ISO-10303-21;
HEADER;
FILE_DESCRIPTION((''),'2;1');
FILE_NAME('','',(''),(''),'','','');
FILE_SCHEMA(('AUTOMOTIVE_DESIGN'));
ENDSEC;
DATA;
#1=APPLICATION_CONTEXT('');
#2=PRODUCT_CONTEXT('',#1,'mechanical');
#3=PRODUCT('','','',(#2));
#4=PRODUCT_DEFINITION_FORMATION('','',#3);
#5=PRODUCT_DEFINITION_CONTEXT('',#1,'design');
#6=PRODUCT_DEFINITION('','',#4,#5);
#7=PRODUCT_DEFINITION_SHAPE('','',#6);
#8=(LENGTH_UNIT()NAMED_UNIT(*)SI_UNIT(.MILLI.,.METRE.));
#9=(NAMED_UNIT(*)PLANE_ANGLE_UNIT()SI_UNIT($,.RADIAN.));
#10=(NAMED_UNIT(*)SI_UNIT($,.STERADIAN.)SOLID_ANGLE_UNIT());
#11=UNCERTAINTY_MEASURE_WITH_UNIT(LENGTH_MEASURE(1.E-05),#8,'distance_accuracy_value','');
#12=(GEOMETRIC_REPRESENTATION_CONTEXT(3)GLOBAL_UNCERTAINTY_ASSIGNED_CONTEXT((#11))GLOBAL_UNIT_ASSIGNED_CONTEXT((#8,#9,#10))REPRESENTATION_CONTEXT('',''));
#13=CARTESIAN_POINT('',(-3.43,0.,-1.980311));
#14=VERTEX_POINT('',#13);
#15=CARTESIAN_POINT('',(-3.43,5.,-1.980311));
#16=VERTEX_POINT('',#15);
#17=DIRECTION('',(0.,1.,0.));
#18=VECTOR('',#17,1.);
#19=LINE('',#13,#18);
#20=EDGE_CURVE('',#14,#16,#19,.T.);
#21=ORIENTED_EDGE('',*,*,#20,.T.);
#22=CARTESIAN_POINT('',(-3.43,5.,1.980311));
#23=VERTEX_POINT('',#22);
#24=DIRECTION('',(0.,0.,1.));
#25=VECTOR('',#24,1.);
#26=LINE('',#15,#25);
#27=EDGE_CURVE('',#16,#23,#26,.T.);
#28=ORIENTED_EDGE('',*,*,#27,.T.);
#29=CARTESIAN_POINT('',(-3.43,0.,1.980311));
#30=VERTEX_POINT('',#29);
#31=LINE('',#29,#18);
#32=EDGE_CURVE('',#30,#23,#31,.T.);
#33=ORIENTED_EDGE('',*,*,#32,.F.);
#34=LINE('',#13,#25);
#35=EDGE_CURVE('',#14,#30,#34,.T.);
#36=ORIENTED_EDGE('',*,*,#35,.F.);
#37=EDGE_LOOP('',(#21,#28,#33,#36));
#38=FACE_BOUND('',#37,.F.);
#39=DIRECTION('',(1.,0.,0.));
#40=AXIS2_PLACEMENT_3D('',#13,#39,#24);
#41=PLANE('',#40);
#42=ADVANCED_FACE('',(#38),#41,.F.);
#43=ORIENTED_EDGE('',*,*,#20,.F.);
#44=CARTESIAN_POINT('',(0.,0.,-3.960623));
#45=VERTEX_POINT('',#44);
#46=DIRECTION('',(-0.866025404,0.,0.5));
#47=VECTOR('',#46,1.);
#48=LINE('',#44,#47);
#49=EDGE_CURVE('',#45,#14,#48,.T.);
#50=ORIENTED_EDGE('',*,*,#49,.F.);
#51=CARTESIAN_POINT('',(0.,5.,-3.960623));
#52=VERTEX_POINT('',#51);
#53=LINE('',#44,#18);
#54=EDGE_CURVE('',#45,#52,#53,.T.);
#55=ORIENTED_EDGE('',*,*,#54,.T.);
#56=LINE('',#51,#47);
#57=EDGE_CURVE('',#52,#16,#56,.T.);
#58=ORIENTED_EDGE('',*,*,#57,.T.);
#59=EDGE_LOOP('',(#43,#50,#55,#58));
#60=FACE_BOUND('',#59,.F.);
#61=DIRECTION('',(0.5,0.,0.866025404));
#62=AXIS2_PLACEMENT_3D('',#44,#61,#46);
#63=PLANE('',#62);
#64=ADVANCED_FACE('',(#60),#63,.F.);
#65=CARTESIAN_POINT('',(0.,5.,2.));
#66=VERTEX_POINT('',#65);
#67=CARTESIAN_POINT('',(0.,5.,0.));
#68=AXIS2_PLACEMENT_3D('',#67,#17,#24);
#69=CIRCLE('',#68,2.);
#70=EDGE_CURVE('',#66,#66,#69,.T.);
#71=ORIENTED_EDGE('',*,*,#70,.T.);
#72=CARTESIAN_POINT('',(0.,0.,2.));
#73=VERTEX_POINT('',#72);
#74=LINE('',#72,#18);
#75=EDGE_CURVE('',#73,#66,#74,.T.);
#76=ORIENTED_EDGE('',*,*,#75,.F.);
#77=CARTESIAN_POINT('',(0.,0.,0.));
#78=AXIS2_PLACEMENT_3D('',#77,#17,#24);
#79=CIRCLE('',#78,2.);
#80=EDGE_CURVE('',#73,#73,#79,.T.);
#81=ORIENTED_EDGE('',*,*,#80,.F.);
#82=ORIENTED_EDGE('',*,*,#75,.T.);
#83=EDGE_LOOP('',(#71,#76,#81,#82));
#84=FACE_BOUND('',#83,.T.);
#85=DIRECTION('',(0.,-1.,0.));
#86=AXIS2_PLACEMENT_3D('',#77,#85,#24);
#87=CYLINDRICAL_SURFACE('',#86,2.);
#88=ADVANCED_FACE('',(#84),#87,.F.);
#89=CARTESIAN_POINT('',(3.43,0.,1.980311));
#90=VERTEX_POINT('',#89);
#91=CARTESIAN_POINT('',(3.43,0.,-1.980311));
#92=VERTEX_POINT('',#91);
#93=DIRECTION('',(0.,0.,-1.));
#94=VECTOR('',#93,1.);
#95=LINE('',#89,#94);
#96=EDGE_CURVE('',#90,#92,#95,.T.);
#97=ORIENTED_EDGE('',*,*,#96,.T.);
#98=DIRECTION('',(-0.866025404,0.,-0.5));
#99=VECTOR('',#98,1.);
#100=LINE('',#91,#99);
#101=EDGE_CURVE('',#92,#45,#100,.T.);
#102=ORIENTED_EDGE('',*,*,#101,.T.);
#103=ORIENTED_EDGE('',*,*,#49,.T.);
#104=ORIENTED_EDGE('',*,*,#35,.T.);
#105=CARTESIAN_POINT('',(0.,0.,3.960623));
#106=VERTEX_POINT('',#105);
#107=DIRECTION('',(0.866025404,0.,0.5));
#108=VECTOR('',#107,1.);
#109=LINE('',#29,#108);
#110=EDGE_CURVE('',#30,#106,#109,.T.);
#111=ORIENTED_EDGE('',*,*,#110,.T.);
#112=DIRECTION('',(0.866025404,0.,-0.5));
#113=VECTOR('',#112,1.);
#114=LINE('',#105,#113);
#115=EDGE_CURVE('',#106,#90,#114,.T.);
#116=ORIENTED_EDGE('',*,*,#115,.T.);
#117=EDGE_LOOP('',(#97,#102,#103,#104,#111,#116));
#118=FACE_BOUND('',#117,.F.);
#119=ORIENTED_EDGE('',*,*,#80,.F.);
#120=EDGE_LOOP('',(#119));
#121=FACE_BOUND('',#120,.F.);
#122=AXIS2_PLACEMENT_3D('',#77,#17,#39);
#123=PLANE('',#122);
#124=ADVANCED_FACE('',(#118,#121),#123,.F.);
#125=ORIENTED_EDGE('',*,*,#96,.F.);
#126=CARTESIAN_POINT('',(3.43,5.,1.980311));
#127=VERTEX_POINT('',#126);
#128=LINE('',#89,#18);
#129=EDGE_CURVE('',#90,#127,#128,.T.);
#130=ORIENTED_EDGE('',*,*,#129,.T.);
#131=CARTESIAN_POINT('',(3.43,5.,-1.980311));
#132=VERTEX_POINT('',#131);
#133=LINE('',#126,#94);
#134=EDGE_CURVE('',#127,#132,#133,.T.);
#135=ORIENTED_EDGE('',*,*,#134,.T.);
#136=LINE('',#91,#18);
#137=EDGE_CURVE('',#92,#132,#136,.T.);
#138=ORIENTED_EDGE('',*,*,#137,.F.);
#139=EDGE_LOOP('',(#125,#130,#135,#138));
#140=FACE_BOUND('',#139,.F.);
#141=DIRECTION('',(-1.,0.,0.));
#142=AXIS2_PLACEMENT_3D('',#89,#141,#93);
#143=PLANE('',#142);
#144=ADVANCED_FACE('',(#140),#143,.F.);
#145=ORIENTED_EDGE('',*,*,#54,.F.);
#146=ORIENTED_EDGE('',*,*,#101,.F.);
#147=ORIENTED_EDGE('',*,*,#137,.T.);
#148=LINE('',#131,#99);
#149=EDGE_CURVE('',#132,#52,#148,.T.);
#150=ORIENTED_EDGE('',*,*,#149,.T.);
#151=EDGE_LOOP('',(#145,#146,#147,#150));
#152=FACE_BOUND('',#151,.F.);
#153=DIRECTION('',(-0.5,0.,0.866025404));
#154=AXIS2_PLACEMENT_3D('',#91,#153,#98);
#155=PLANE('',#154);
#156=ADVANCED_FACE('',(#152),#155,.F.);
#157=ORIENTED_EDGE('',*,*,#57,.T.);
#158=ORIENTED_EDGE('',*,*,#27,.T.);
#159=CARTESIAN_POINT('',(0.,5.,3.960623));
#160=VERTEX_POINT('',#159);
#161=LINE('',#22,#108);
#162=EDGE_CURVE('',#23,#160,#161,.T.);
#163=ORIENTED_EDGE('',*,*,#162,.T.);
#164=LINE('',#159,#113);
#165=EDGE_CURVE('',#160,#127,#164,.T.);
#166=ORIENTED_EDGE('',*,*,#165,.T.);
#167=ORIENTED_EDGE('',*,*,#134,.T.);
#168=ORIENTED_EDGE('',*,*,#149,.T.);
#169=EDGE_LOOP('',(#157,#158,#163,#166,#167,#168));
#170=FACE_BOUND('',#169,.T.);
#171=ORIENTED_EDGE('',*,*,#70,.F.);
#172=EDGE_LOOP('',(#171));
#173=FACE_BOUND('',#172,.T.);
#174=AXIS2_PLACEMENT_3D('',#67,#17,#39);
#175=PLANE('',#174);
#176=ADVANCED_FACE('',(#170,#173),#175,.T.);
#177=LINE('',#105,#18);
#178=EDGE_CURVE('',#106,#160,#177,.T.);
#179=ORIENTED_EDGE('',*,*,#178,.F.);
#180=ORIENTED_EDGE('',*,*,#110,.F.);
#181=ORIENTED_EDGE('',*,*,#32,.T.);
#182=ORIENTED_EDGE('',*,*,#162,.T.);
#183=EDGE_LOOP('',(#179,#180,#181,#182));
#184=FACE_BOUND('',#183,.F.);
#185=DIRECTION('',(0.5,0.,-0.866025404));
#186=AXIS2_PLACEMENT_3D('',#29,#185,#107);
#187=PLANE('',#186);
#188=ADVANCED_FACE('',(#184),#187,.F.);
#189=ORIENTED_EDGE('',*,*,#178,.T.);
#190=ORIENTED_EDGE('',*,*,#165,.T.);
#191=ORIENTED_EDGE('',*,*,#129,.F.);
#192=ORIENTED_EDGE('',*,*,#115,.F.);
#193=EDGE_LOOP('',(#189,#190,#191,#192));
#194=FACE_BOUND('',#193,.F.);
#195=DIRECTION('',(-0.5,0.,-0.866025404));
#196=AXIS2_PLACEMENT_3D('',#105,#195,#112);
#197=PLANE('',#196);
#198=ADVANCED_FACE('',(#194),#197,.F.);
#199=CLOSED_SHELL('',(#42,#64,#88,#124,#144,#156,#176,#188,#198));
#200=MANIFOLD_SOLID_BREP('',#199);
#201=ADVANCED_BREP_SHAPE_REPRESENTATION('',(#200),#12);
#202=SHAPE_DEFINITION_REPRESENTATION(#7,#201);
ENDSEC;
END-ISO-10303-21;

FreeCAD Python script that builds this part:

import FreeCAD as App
import Part
import Sketcher
Q = App.Units.Quantity


def add_polygon(sketch, points):
    """Adds a closed chain of lines whose ends are joined by coincident constraints."""
    first, n = sketch.GeometryCount, len(points)
    for a, b in zip(points, points[1:] + points[:1]):
        sketch.addGeometry(Part.LineSegment(App.Vector(*a, 0), App.Vector(*b, 0)), False)
    for i in range(n):
        sketch.addConstraint(Sketcher.Constraint("Coincident", first + i, 2, first + (i + 1) % n, 1))

doc = App.newDocument("Part")
body = doc.addObject("PartDesign::Body", "Body")

# Sketch on XZ plane
sketch1 = body.newObject("Sketcher::SketchObject", "Sketch")
sketch1.AttachmentSupport = (doc.getObject("XZ_Plane"), [""])
sketch1.MapMode = "FlatFace"
add_polygon(sketch1, [(0, 4), (3.4, 2), (3.4, -2), (0, -4), (-3.4, -2), (-3.4, 2)])  # lines 0-5
sketch1.addGeometry(Part.Circle(App.Vector(0, 0, 0), App.Vector(0, 0, 1), 2), False)  # 6
sketch1.addConstraint(Sketcher.Constraint("Vertical", 1))
sketch1.addConstraint(Sketcher.Constraint("Vertical", 4))
sketch1.addConstraint(Sketcher.Constraint("Coincident", 6, 3, -1, 1))
sketch1.addConstraint(Sketcher.Constraint("Symmetric", 0, 2, 3, 2, -1, 1))
sketch1.addConstraint(Sketcher.Constraint("Symmetric", 2, 2, 5, 2, -1, 1))
sketch1.addConstraint(Sketcher.Constraint("PointOnObject", 2, 2, -2))
sketch1.addConstraint(Sketcher.Constraint("Parallel", 2, 5))
sketch1.addConstraint(Sketcher.Constraint("Horizontal", 1, 2, 3, 2))
sketch1.addConstraint(Sketcher.Constraint("Diameter", 6, Q("4 mm")))
sketch1.addConstraint(Sketcher.Constraint("Angle", 0, Q("-30 deg")))
sketch1.addConstraint(Sketcher.Constraint("DistanceX", -1, 1, 0, 2, Q("3.43 mm")))
sketch1.addConstraint(Sketcher.Constraint("DistanceY", 1, 2, 1, 1, Q("3.960623 mm")))
pad1 = body.newObject("PartDesign::Pad", "Pad")
pad1.Profile = sketch1
pad1.Length = 5
pad1.Reversed = True

doc.recompute()
